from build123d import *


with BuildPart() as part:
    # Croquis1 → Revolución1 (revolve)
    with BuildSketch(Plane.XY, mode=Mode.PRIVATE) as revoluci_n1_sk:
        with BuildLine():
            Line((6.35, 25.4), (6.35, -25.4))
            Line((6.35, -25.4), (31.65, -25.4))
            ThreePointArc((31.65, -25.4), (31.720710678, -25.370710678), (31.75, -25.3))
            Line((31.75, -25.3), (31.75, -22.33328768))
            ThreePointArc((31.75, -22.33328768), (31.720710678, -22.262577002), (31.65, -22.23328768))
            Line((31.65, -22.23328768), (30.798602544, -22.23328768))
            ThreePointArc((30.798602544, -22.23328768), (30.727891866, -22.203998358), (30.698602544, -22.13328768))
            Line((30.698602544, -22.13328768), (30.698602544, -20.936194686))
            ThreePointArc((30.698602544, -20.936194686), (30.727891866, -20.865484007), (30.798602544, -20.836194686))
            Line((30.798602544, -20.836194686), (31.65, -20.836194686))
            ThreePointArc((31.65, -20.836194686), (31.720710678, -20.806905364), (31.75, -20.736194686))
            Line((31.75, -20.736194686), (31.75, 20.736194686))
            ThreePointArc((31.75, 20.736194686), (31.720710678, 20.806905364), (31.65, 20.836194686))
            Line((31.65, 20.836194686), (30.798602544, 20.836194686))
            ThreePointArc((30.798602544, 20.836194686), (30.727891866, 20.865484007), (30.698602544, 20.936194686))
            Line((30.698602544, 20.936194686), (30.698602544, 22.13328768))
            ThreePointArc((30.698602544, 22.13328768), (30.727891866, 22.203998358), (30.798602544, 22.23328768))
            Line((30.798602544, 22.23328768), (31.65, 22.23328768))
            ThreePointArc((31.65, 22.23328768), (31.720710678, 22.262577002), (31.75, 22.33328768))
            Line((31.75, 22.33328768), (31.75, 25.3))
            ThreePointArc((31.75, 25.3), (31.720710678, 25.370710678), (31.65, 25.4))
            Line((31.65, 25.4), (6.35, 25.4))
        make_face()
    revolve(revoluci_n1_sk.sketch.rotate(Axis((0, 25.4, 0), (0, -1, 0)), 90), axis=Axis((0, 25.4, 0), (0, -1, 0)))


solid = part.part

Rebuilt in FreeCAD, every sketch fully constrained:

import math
import FreeCAD as App
import Part
import Sketcher

V = App.Vector

doc = App.newDocument("Part")
body = doc.addObject("PartDesign::Body", "Body")

# Sketch on XY plane
sketch1 = body.newObject("Sketcher::SketchObject", "Sketch")
sketch1.AttachmentSupport = (doc.getObject("XY_Plane"), [""])
sketch1.MapMode = "FlatFace"
sketch1.addGeometry(Part.LineSegment(V(6.35, 25.4, 0), V(6.35, -25.4, 0)), False)
sketch1.addGeometry(Part.LineSegment(V(6.35, -25.4, 0), V(31.65, -25.4, 0)), False)
sketch1.addGeometry(Part.ArcOfCircle(Part.Circle(V(31.65, -25.3, 0), V(0, 0, 1), 0.1), math.radians(-90), math.radians(0)), False)
sketch1.addGeometry(Part.LineSegment(V(31.75, -25.3, 0), V(31.75, -22.33, 0)), False)
sketch1.addGeometry(Part.ArcOfCircle(Part.Circle(V(31.65, -22.33, 0), V(0, 0, 1), 0.1), math.radians(0), math.radians(90)), False)
sketch1.addGeometry(Part.LineSegment(V(31.65, -22.23, 0), V(30.8, -22.23, 0)), False)
sketch1.addGeometry(Part.ArcOfCircle(Part.Circle(V(30.8, -22.13, 0), V(0, 0, 1), 0.1), math.radians(180), math.radians(270)), False)
sketch1.addGeometry(Part.LineSegment(V(30.7, -22.13, 0), V(30.7, -20.94, 0)), False)
sketch1.addGeometry(Part.ArcOfCircle(Part.Circle(V(30.8, -20.94, 0), V(0, 0, 1), 0.1), math.radians(90), math.radians(180)), False)
sketch1.addGeometry(Part.LineSegment(V(30.8, -20.84, 0), V(31.65, -20.84, 0)), False)
sketch1.addGeometry(Part.ArcOfCircle(Part.Circle(V(31.65, -20.74, 0), V(0, 0, 1), 0.1), math.radians(-90), math.radians(0)), False)
sketch1.addGeometry(Part.LineSegment(V(31.75, -20.74, 0), V(31.75, 20.74, 0)), False)
sketch1.addGeometry(Part.ArcOfCircle(Part.Circle(V(31.65, 20.74, 0), V(0, 0, 1), 0.1), math.radians(0), math.radians(90)), False)
sketch1.addGeometry(Part.LineSegment(V(31.65, 20.84, 0), V(30.8, 20.84, 0)), False)
sketch1.addGeometry(Part.ArcOfCircle(Part.Circle(V(30.8, 20.94, 0), V(0, 0, 1), 0.1), math.radians(180), math.radians(270)), False)
sketch1.addGeometry(Part.LineSegment(V(30.7, 20.94, 0), V(30.7, 22.13, 0)), False)
sketch1.addGeometry(Part.ArcOfCircle(Part.Circle(V(30.8, 22.13, 0), V(0, 0, 1), 0.1), math.radians(90), math.radians(180)), False)
sketch1.addGeometry(Part.LineSegment(V(30.8, 22.23, 0), V(31.65, 22.23, 0)), False)
sketch1.addGeometry(Part.ArcOfCircle(Part.Circle(V(31.65, 22.33, 0), V(0, 0, 1), 0.1), math.radians(-90), math.radians(0)), False)
sketch1.addGeometry(Part.LineSegment(V(31.75, 22.33, 0), V(31.75, 25.3, 0)), False)
sketch1.addGeometry(Part.ArcOfCircle(Part.Circle(V(31.65, 25.3, 0), V(0, 0, 1), 0.1), math.radians(0), math.radians(90)), False)
sketch1.addGeometry(Part.LineSegment(V(31.65, 25.4, 0), V(6.35, 25.4, 0)), False)
sketch1.addConstraint(Sketcher.Constraint("Coincident", 0, 2, 1, 1))
sketch1.addConstraint(Sketcher.Constraint("Tangent", 1, 2, 2, 1))
sketch1.addConstraint(Sketcher.Constraint("Tangent", 2, 2, 3, 1))
sketch1.addConstraint(Sketcher.Constraint("Tangent", 3, 2, 4, 1))
sketch1.addConstraint(Sketcher.Constraint("Tangent", 4, 2, 5, 1))
sketch1.addConstraint(Sketcher.Constraint("Tangent", 5, 2, 6, 2))
sketch1.addConstraint(Sketcher.Constraint("Tangent", 6, 1, 7, 1))
sketch1.addConstraint(Sketcher.Constraint("Tangent", 7, 2, 8, 2))
sketch1.addConstraint(Sketcher.Constraint("Tangent", 8, 1, 9, 1))
sketch1.addConstraint(Sketcher.Constraint("Tangent", 9, 2, 10, 1))
sketch1.addConstraint(Sketcher.Constraint("Tangent", 10, 2, 11, 1))
sketch1.addConstraint(Sketcher.Constraint("Tangent", 11, 2, 12, 1))
sketch1.addConstraint(Sketcher.Constraint("Tangent", 12, 2, 13, 1))
sketch1.addConstraint(Sketcher.Constraint("Tangent", 13, 2, 14, 2))
sketch1.addConstraint(Sketcher.Constraint("Tangent", 14, 1, 15, 1))
sketch1.addConstraint(Sketcher.Constraint("Tangent", 15, 2, 16, 2))
sketch1.addConstraint(Sketcher.Constraint("Tangent", 16, 1, 17, 1))
sketch1.addConstraint(Sketcher.Constraint("Tangent", 17, 2, 18, 1))
sketch1.addConstraint(Sketcher.Constraint("Tangent", 18, 2, 19, 1))
sketch1.addConstraint(Sketcher.Constraint("Tangent", 19, 2, 20, 1))
sketch1.addConstraint(Sketcher.Constraint("Tangent", 20, 2, 21, 1))
sketch1.addConstraint(Sketcher.Constraint("Coincident", 21, 2, 0, 1))
sketch1.addConstraint(Sketcher.Constraint("Vertical", 0))
sketch1.addConstraint(Sketcher.Constraint("Horizontal", 1))
sketch1.addConstraint(Sketcher.Constraint("Vertical", 3))
sketch1.addConstraint(Sketcher.Constraint("Horizontal", 5))
sketch1.addConstraint(Sketcher.Constraint("Vertical", 7))
sketch1.addConstraint(Sketcher.Constraint("Horizontal", 9))
sketch1.addConstraint(Sketcher.Constraint("Vertical", 11))
sketch1.addConstraint(Sketcher.Constraint("Horizontal", 13))
sketch1.addConstraint(Sketcher.Constraint("Vertical", 15))
sketch1.addConstraint(Sketcher.Constraint("Horizontal", 17))
sketch1.addConstraint(Sketcher.Constraint("Vertical", 19))
sketch1.addConstraint(Sketcher.Constraint("Horizontal", 21))
sketch1.addConstraint(Sketcher.Constraint("Equal", 2, 4))
sketch1.addConstraint(Sketcher.Constraint("Equal", 4, 6))
sketch1.addConstraint(Sketcher.Constraint("Equal", 6, 8))
sketch1.addConstraint(Sketcher.Constraint("Equal", 8, 10))
sketch1.addConstraint(Sketcher.Constraint("Equal", 10, 12))
sketch1.addConstraint(Sketcher.Constraint("Equal", 12, 14))
sketch1.addConstraint(Sketcher.Constraint("Equal", 14, 16))
sketch1.addConstraint(Sketcher.Constraint("Equal", 16, 18))
sketch1.addConstraint(Sketcher.Constraint("Equal", 18, 20))
sketch1.addConstraint(Sketcher.Constraint("Symmetric", 8, 3, 14, 3, -1))
sketch1.addConstraint(Sketcher.Constraint("Symmetric", 4, 3, 18, 3, -1))
sketch1.addConstraint(Sketcher.Constraint("Vertical", 4, 3, 10, 3))
sketch1.addConstraint(Sketcher.Constraint("Equal", 3, 19))
sketch1.addConstraint(Sketcher.Constraint("Radius", 2, 0.1))
sketch1.addConstraint(Sketcher.Constraint("DistanceX", 1, 1, 1, 2, 25.3))
sketch1.addConstraint(Sketcher.Constraint("DistanceY", 0, 2, 0, 1, 50.8))
sketch1.addConstraint(Sketcher.Constraint("DistanceX", -1, 1, 2, 3, 31.65))
sketch1.addConstraint(Sketcher.Constraint("DistanceY", 11, 1, 11, 2, 41.472389))
sketch1.addConstraint(Sketcher.Constraint("DistanceX", 5, 2, 5, 1, 0.851397))
sketch1.addConstraint(Sketcher.Constraint("DistanceY", 3, 1, 3, 2, 2.966712))
revolution = body.newObject("PartDesign::Revolution", "Revolution")
revolution.Profile = sketch1
revolution.ReferenceAxis = (sketch1, ["V_Axis"])
revolution.Angle = 360

doc.recompute()
